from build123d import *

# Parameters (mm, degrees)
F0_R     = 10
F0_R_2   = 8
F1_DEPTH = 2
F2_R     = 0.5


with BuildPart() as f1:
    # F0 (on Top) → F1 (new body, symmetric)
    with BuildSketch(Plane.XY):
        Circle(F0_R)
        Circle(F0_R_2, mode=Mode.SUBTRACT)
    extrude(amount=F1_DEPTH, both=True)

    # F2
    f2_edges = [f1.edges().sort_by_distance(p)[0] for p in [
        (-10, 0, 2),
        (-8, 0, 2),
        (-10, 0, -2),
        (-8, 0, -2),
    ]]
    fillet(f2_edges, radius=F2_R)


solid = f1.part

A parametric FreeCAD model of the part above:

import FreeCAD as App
import Part
import Sketcher
Q = App.Units.Quantity


def edges_at(feature, points):
    """Names of the edges that pass closest to the given points."""
    edges = feature.Shape.Edges
    near = lambda p: min(range(len(edges)), key=lambda i: edges[i].distToShape(Part.Vertex(*p))[0])
    return sorted({f"Edge{near(p) + 1}" for p in points})

doc = App.newDocument("Part")
body = doc.addObject("PartDesign::Body", "Body")

# Sketch on XY plane
sketch1 = body.newObject("Sketcher::SketchObject", "Sketch")
sketch1.AttachmentSupport = (doc.getObject("XY_Plane"), [""])
sketch1.MapMode = "FlatFace"
sketch1.addGeometry(Part.Circle(App.Vector(0, 0, 0), App.Vector(0, 0, 1), 10), False)
sketch1.addGeometry(Part.Circle(App.Vector(0, 0, 0), App.Vector(0, 0, 1), 8), False)
sketch1.addConstraint(Sketcher.Constraint("Coincident", 0, 3, -1, 1))
sketch1.addConstraint(Sketcher.Constraint("Coincident", 1, 3, -1, 1))
sketch1.addConstraint(Sketcher.Constraint("Diameter", 0, Q("20 mm")))
sketch1.addConstraint(Sketcher.Constraint("Diameter", 1, Q("16 mm")))
pad1 = body.newObject("PartDesign::Pad", "Pad")
pad1.Profile = sketch1
pad1.Length = 4
pad1.Midplane = True
doc.recompute()

fillet = body.newObject("PartDesign::Fillet", "Fillet")
fillet.Base = (pad1, edges_at(pad1, [
    (-10, 0, 2),
    (-8, 0, 2),
    (-10, 0, -2),
    (-8, 0, -2),
]))
fillet.Radius = 0.5

doc.recompute()
